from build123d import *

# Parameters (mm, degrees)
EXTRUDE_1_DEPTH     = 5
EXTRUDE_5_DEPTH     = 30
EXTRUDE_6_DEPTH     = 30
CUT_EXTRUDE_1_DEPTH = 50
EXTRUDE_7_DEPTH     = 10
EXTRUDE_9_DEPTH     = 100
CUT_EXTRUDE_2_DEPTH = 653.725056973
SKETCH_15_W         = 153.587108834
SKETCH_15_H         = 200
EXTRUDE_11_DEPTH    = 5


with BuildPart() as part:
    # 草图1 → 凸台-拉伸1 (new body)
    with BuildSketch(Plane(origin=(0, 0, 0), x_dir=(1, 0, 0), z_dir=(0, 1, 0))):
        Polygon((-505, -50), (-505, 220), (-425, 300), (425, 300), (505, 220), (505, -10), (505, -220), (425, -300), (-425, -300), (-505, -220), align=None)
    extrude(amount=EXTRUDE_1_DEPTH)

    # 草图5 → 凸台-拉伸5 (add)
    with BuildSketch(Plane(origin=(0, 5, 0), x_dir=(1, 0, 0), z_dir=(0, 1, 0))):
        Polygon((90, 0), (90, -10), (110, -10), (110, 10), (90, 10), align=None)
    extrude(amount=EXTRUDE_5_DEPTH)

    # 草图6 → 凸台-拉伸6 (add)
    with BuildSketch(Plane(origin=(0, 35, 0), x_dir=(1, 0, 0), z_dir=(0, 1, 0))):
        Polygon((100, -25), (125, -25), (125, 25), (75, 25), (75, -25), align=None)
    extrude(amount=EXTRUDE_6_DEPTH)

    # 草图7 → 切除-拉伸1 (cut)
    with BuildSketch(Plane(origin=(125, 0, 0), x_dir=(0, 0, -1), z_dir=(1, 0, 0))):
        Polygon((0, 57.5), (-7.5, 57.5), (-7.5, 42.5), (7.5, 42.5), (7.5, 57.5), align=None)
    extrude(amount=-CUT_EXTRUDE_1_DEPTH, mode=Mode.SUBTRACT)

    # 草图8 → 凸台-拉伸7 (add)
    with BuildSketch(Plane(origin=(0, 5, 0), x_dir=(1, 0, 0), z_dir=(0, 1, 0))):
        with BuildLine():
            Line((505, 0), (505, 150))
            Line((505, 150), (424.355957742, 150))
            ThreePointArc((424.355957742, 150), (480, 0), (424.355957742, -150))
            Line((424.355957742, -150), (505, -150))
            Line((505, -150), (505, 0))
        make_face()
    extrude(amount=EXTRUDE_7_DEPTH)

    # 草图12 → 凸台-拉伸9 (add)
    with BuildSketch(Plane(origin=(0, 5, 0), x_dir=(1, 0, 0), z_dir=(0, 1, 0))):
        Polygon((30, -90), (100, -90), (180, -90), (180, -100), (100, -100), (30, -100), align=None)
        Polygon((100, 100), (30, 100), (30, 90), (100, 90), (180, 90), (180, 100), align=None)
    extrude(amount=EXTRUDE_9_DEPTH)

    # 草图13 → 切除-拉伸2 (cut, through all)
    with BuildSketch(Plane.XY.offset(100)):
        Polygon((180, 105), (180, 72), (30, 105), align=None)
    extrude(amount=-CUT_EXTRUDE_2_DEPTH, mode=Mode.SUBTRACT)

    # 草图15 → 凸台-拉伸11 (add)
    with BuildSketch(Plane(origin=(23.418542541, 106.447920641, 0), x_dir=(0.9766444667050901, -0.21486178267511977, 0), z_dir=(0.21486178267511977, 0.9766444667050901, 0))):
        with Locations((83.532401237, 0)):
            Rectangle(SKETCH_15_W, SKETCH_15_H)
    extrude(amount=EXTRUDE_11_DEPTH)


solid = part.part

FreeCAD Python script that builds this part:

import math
import FreeCAD as App
import Part
import Sketcher
Q = App.Units.Quantity


def add_polygon(sketch, points):
    """Adds a closed chain of lines whose ends are joined by coincident constraints."""
    first, n = sketch.GeometryCount, len(points)
    for a, b in zip(points, points[1:] + points[:1]):
        sketch.addGeometry(Part.LineSegment(App.Vector(*a, 0), App.Vector(*b, 0)), False)
    for i in range(n):
        sketch.addConstraint(Sketcher.Constraint("Coincident", first + i, 2, first + (i + 1) % n, 1))

doc = App.newDocument("Part")
body = doc.addObject("PartDesign::Body", "Body")

# Sketch on XZ plane
sketch1 = body.newObject("Sketcher::SketchObject", "Sketch")
sketch1.AttachmentSupport = (doc.getObject("XZ_Plane"), [""])
sketch1.MapMode = "FlatFace"
add_polygon(sketch1, [(-505, -220), (-505, 220), (-425, 300), (425, 300), (505, 220), (505, -220), (425, -300), (-425, -300)])  # lines 0-7
sketch1.addConstraint(Sketcher.Constraint("Vertical", 0))
sketch1.addConstraint(Sketcher.Constraint("Horizontal", 2))
sketch1.addConstraint(Sketcher.Constraint("Vertical", 4))
sketch1.addConstraint(Sketcher.Constraint("Horizontal", 6))
sketch1.addConstraint(Sketcher.Constraint("Symmetric", 0, 2, 4, 2, -1, 1))
sketch1.addConstraint(Sketcher.Constraint("Symmetric", 1, 2, 5, 2, -1, 1))
sketch1.addConstraint(Sketcher.Constraint("Perpendicular", 1, 3))
sketch1.addConstraint(Sketcher.Constraint("Perpendicular", 5, 7))
sketch1.addConstraint(Sketcher.Constraint("Horizontal", 0, 2, 3, 2))
sketch1.addConstraint(Sketcher.Constraint("Horizontal", 4, 2, 7, 2))
sketch1.addConstraint(Sketcher.Constraint("Vertical", 2, 2, 5, 2))
sketch1.addConstraint(Sketcher.Constraint("DistanceX", 2, 1, 2, 2, Q("850 mm")))
sketch1.addConstraint(Sketcher.Constraint("DistanceY", 0, 1, 0, 2, Q("440 mm")))
sketch1.addConstraint(Sketcher.Constraint("DistanceX", 0, 2, -1, 1, Q("505 mm")))
pad1 = body.newObject("PartDesign::Pad", "Pad")
pad1.Profile = sketch1
pad1.Length = 5
pad1.Reversed = True

# Sketch on XZ plane
sketch2 = body.newObject("Sketcher::SketchObject", "Sketch001")
sketch2.AttachmentSupport = (doc.getObject("XZ_Plane"), [""])
sketch2.MapMode = "FlatFace"
sketch2.AttachmentOffset = App.Placement(App.Vector(0, 0, -5), App.Rotation())
add_polygon(sketch2, [(90, 10), (110, 10), (110, -10), (90, -10)])  # lines 0-3
sketch2.addConstraint(Sketcher.Constraint("Horizontal", 0))
sketch2.addConstraint(Sketcher.Constraint("Vertical", 1))
sketch2.addConstraint(Sketcher.Constraint("Horizontal", 2))
sketch2.addConstraint(Sketcher.Constraint("Vertical", 3))
sketch2.addConstraint(Sketcher.Constraint("Equal", 2, 1))
sketch2.addConstraint(Sketcher.Constraint("DistanceX", 0, 1, 0, 2, Q("20 mm")))
sketch2.addConstraint(Sketcher.Constraint("DistanceX", -1, 1, 0, 2, Q("110 mm")))
sketch2.addConstraint(Sketcher.Constraint("DistanceY", -1, 1, 0, 2, Q("10 mm")))
pad2 = body.newObject("PartDesign::Pad", "Pad001")
pad2.Profile = sketch2
pad2.Length = 30
pad2.Reversed = True

# Sketch on XZ plane
sketch3 = body.newObject("Sketcher::SketchObject", "Sketch002")
sketch3.AttachmentSupport = (doc.getObject("XZ_Plane"), [""])
sketch3.MapMode = "FlatFace"
sketch3.AttachmentOffset = App.Placement(App.Vector(0, 0, -35), App.Rotation())
add_polygon(sketch3, [(125, 25), (125, -25), (75, -25), (75, 25)])  # lines 0-3
sketch3.addConstraint(Sketcher.Constraint("Vertical", 0))
sketch3.addConstraint(Sketcher.Constraint("Horizontal", 1))
sketch3.addConstraint(Sketcher.Constraint("Vertical", 2))
sketch3.addConstraint(Sketcher.Constraint("Horizontal", 3))
sketch3.addConstraint(Sketcher.Constraint("Equal", 3, 0))
sketch3.addConstraint(Sketcher.Constraint("DistanceX", 1, 2, 1, 1, Q("50 mm")))
sketch3.addConstraint(Sketcher.Constraint("DistanceX", -1, 1, 0, 2, Q("125 mm")))
sketch3.addConstraint(Sketcher.Constraint("DistanceY", 0, 2, -1, 1, Q("25 mm")))
pad3 = body.newObject("PartDesign::Pad", "Pad002")
pad3.Profile = sketch3
pad3.Length = 30
pad3.Reversed = True

# Sketch on YZ plane
sketch4 = body.newObject("Sketcher::SketchObject", "Sketch003")
sketch4.AttachmentSupport = (doc.getObject("YZ_Plane"), [""])
sketch4.MapMode = "FlatFace"
sketch4.AttachmentOffset = App.Placement(App.Vector(0, 0, 125), App.Rotation())
add_polygon(sketch4, [(58, 8), (42, 8), (42, -8), (58, -8)])  # lines 0-3
sketch4.addConstraint(Sketcher.Constraint("Horizontal", 0))
sketch4.addConstraint(Sketcher.Constraint("Vertical", 1))
sketch4.addConstraint(Sketcher.Constraint("Horizontal", 2))
sketch4.addConstraint(Sketcher.Constraint("Vertical", 3))
sketch4.addConstraint(Sketcher.Constraint("Equal", 2, 1))
sketch4.addConstraint(Sketcher.Constraint("DistanceX", 0, 2, 0, 1, Q("15 mm")))
sketch4.addConstraint(Sketcher.Constraint("DistanceX", -1, 1, 0, 2, Q("42.5 mm")))
sketch4.addConstraint(Sketcher.Constraint("DistanceY", -1, 1, 0, 2, Q("7.5 mm")))
pocket1 = body.newObject("PartDesign::Pocket", "Pocket")
pocket1.Profile = sketch4
pocket1.Length = 50

# Sketch on XZ plane
sketch5 = body.newObject("Sketcher::SketchObject", "Sketch004")
sketch5.AttachmentSupport = (doc.getObject("XZ_Plane"), [""])
sketch5.MapMode = "FlatFace"
sketch5.AttachmentOffset = App.Placement(App.Vector(0, 0, -5), App.Rotation())
sketch5.addGeometry(Part.LineSegment(App.Vector(505, -150, 0), App.Vector(424, -150, 0)), False)
sketch5.addGeometry(Part.ArcOfCircle(Part.Circle(App.Vector(250, 0, 0), App.Vector(0, 0, 1), 230), math.radians(-41), math.radians(41)), False)
sketch5.addGeometry(Part.LineSegment(App.Vector(424, 150, 0), App.Vector(505, 150, 0)), False)
sketch5.addGeometry(Part.LineSegment(App.Vector(505, 150, 0), App.Vector(505, -150, 0)), False)
sketch5.addConstraint(Sketcher.Constraint("Coincident", 0, 2, 1, 1))
sketch5.addConstraint(Sketcher.Constraint("Coincident", 1, 2, 2, 1))
sketch5.addConstraint(Sketcher.Constraint("Coincident", 2, 2, 3, 1))
sketch5.addConstraint(Sketcher.Constraint("Coincident", 3, 2, 0, 1))
sketch5.addConstraint(Sketcher.Constraint("Horizontal", 0))
sketch5.addConstraint(Sketcher.Constraint("Horizontal", 2))
sketch5.addConstraint(Sketcher.Constraint("Vertical", 3))
sketch5.addConstraint(Sketcher.Constraint("Symmetric", 0, 2, 1, 2, -1))
sketch5.addConstraint(Sketcher.Constraint("Radius", 1, Q("230 mm")))
sketch5.addConstraint(Sketcher.Constraint("DistanceY", 3, 2, 3, 1, Q("300 mm")))
sketch5.addConstraint(Sketcher.Constraint("DistanceX", -1, 1, 1, 3, Q("250 mm")))
sketch5.addConstraint(Sketcher.Constraint("DistanceX", -1, 1, 2, 2, Q("505 mm")))
pad4 = body.newObject("PartDesign::Pad", "Pad003")
pad4.Profile = sketch5
pad4.Length = 10
pad4.Reversed = True

# Sketch on XZ plane
sketch6 = body.newObject("Sketcher::SketchObject", "Sketch005")
sketch6.AttachmentSupport = (doc.getObject("XZ_Plane"), [""])
sketch6.MapMode = "FlatFace"
sketch6.AttachmentOffset = App.Placement(App.Vector(0, 0, -5), App.Rotation())
add_polygon(sketch6, [(180, 90), (30, 90), (30, 100), (180, 100)])  # lines 0-3
add_polygon(sketch6, [(30, -100), (30, -90), (180, -90), (180, -100)])  # lines 4-7
sketch6.addConstraint(Sketcher.Constraint("Horizontal", 0))
sketch6.addConstraint(Sketcher.Constraint("Vertical", 1))
sketch6.addConstraint(Sketcher.Constraint("Horizontal", 2))
sketch6.addConstraint(Sketcher.Constraint("Vertical", 3))
sketch6.addConstraint(Sketcher.Constraint("Vertical", 4))
sketch6.addConstraint(Sketcher.Constraint("Horizontal", 5))
sketch6.addConstraint(Sketcher.Constraint("Vertical", 6))
sketch6.addConstraint(Sketcher.Constraint("Horizontal", 7))
sketch6.addConstraint(Sketcher.Constraint("Symmetric", 0, 2, 4, 2, -1))
sketch6.addConstraint(Sketcher.Constraint("Symmetric", 2, 2, 6, 2, -1))
sketch6.addConstraint(Sketcher.Constraint("DistanceX", 0, 2, 0, 1, Q("150 mm")))
sketch6.addConstraint(Sketcher.Constraint("DistanceY", 1, 1, 1, 2, Q("10 mm")))
sketch6.addConstraint(Sketcher.Constraint("DistanceX", -1, 1, 0, 2, Q("30 mm")))
sketch6.addConstraint(Sketcher.Constraint("DistanceY", -1, 1, 0, 2, Q("90 mm")))
pad5 = body.newObject("PartDesign::Pad", "Pad004")
pad5.Profile = sketch6
pad5.Length = 100
pad5.Reversed = True

# Sketch on XY plane
sketch7 = body.newObject("Sketcher::SketchObject", "Sketch006")
sketch7.AttachmentSupport = (doc.getObject("XY_Plane"), [""])
sketch7.MapMode = "FlatFace"
sketch7.AttachmentOffset = App.Placement(App.Vector(0, 0, 100), App.Rotation())
add_polygon(sketch7, [(180, 72), (180, 105), (30, 105)])  # lines 0-2
sketch7.addConstraint(Sketcher.Constraint("Vertical", 0))
sketch7.addConstraint(Sketcher.Constraint("Horizontal", 1))
sketch7.addConstraint(Sketcher.Constraint("DistanceX", 1, 2, 1, 1, Q("150 mm")))
sketch7.addConstraint(Sketcher.Constraint("DistanceY", 0, 1, 0, 2, Q("33 mm")))
sketch7.addConstraint(Sketcher.Constraint("DistanceX", -1, 1, 0, 2, Q("180 mm")))
sketch7.addConstraint(Sketcher.Constraint("DistanceY", -1, 1, 0, 2, Q("105 mm")))
pocket2 = body.newObject("PartDesign::Pocket", "Pocket001")
pocket2.Profile = sketch7
pocket2.Type = "ThroughAll"

# Sketch on an angled plane
sketch8 = body.newObject("Sketcher::SketchObject", "Sketch007")
sketch8.Placement = App.Placement(App.Vector(23.418543, 106.447921, 0), App.Rotation(App.Vector(0.976644467, -0.214861783, 0), App.Vector(0, 0, -1.000000001), App.Vector(0.214861783, 0.976644467, 0), "ZXY"))
add_polygon(sketch8, [(7, 100), (7, -100), (160, -100), (160, 100)])  # lines 0-3
sketch8.addConstraint(Sketcher.Constraint("Vertical", 0))
sketch8.addConstraint(Sketcher.Constraint("Horizontal", 1))
sketch8.addConstraint(Sketcher.Constraint("Vertical", 2))
sketch8.addConstraint(Sketcher.Constraint("Horizontal", 3))
sketch8.addConstraint(Sketcher.Constraint("DistanceY", 0, 2, 0, 1, Q("200 mm")))
sketch8.addConstraint(Sketcher.Constraint("DistanceY", 0, 2, -1, 1, Q("100 mm")))
sketch8.addConstraint(Sketcher.Constraint("DistanceX", 1, 1, 1, 2, Q("153.587109 mm")))
sketch8.addConstraint(Sketcher.Constraint("DistanceX", -1, 1, 0, 2, Q("6.738847 mm")))
pad6 = body.newObject("PartDesign::Pad", "Pad005")
pad6.Profile = sketch8
pad6.Length = 5

doc.recompute()
